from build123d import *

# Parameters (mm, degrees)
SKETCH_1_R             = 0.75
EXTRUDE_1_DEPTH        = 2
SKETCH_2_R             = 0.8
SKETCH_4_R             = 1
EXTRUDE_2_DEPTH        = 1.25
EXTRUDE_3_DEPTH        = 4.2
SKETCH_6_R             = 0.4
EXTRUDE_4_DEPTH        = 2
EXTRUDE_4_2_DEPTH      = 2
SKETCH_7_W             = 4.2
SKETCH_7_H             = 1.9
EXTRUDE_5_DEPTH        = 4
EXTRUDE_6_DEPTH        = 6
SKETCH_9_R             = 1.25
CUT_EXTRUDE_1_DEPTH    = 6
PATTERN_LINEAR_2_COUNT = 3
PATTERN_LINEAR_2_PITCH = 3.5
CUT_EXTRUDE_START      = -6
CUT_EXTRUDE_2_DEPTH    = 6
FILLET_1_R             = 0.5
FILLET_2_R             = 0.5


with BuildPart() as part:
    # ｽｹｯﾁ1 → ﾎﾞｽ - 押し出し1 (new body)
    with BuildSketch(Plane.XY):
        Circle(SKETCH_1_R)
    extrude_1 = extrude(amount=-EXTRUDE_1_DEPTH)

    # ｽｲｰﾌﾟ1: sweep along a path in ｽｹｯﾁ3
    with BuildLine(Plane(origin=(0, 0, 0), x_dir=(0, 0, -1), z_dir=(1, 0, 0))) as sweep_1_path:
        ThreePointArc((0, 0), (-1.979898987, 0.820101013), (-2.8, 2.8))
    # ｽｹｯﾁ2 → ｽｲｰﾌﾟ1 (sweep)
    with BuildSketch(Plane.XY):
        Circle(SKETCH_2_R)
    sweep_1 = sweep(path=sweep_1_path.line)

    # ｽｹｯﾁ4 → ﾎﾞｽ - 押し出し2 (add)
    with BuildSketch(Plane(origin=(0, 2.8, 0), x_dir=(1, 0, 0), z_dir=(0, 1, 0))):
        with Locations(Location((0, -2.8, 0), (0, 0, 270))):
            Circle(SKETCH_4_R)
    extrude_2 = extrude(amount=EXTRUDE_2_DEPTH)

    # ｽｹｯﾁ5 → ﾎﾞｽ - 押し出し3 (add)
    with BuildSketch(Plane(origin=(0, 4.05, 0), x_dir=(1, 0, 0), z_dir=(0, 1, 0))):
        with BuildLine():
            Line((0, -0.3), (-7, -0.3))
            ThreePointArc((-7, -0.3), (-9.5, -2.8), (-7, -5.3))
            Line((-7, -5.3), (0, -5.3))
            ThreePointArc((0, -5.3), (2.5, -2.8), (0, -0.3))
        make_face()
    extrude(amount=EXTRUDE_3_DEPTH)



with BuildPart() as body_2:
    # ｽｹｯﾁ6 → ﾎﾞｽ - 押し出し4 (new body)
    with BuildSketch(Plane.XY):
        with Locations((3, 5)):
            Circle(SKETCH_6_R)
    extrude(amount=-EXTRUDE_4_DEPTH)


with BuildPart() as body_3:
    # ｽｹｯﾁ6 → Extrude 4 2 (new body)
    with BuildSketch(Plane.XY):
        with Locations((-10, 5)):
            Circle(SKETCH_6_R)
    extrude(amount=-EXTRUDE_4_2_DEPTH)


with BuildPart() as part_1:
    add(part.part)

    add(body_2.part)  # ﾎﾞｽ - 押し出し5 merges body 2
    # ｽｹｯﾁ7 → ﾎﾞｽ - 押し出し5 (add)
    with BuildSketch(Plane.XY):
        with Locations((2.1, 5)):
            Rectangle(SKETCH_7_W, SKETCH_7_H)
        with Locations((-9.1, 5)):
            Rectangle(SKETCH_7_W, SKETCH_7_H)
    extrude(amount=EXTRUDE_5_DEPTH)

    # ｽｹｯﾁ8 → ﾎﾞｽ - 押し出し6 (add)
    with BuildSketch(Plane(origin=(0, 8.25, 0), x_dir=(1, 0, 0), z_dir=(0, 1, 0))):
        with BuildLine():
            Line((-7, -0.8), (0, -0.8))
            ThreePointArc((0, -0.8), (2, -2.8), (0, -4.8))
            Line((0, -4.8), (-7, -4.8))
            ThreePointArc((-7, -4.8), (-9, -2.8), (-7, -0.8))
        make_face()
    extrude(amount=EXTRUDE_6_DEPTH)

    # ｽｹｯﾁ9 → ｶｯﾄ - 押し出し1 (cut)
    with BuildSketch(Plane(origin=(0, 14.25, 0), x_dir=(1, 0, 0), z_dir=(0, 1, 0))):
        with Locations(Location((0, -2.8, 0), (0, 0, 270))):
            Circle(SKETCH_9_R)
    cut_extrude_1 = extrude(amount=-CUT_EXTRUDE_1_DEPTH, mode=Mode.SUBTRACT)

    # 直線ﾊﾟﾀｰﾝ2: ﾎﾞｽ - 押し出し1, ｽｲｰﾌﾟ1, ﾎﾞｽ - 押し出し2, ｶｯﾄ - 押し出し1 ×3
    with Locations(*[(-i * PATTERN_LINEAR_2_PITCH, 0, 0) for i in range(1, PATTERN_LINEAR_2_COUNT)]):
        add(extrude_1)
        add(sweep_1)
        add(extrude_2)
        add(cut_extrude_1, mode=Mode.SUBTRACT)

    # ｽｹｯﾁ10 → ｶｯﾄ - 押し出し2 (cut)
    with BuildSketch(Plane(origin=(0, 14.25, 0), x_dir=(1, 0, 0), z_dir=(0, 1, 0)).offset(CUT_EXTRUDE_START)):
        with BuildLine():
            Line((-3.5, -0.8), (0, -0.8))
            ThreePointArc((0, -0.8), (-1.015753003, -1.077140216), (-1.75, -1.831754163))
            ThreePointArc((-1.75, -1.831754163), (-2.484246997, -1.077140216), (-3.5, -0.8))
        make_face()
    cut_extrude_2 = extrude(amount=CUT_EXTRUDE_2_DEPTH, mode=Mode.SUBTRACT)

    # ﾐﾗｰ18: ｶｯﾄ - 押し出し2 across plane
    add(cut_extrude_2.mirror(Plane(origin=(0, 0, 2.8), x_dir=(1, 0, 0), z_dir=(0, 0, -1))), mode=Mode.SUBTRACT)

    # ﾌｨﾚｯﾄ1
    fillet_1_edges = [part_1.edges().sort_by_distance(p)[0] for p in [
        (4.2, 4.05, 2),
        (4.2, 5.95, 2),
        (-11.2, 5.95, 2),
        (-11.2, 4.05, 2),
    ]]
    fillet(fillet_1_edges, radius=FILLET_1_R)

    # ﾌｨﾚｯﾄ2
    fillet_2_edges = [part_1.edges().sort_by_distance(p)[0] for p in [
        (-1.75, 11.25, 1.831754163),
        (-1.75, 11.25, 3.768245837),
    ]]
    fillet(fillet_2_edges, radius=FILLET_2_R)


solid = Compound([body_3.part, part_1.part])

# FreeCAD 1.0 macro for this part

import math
import FreeCAD as App
import Part
import Sketcher


def edges_at(feature, points):
    """Names of the edges that pass closest to the given points."""
    edges = feature.Shape.Edges
    near = lambda p: min(range(len(edges)), key=lambda i: edges[i].distToShape(Part.Vertex(*p))[0])
    return sorted({f"Edge{near(p) + 1}" for p in points})


def add_polygon(sketch, points):
    """Adds a closed chain of lines whose ends are joined by coincident constraints."""
    first, n = sketch.GeometryCount, len(points)
    for a, b in zip(points, points[1:] + points[:1]):
        sketch.addGeometry(Part.LineSegment(App.Vector(*a, 0), App.Vector(*b, 0)), False)
    for i in range(n):
        sketch.addConstraint(Sketcher.Constraint("Coincident", first + i, 2, first + (i + 1) % n, 1))

doc = App.newDocument("Part")
body = doc.addObject("PartDesign::Body", "Body")

sketch1 = body.newObject("Sketcher::SketchObject", "Sketch")
sketch1.AttachmentSupport = (doc.getObject("XY_Plane"), [""])
sketch1.MapMode = "FlatFace"
sketch1.addGeometry(Part.Circle(App.Vector(0, 0, 0), App.Vector(0, 0, 1), 0.75), False)
sketch1.addConstraint([
    Sketcher.Constraint("Coincident", 0, 3, -1, 1),
    Sketcher.Constraint("Diameter", 0, 1.5),
])
pad1 = body.newObject("PartDesign::Pad", "Pad")
pad1.Profile = sketch1
pad1.Length = 2
pad1.Reversed = True

sketch2 = body.newObject("Sketcher::SketchObject", "Sketch001")
sketch2.AttachmentSupport = (doc.getObject("XY_Plane"), [""])
sketch2.MapMode = "FlatFace"
sketch2.addGeometry(Part.Circle(App.Vector(0, 0, 0), App.Vector(0, 0, 1), 0.8), False)
sketch2.addConstraint([
    Sketcher.Constraint("Coincident", 0, 3, -1, 1),
    Sketcher.Constraint("Diameter", 0, 1.6),
])

sketch3 = body.newObject("Sketcher::SketchObject", "Sketch002")
sketch3.AttachmentSupport = (doc.getObject("YZ_Plane"), [""])
sketch3.MapMode = "FlatFace"
sketch3.addGeometry(Part.ArcOfCircle(Part.Circle(App.Vector(2.8, 0, 0), App.Vector(0, 0, 1), 2.8), math.radians(90), math.radians(180)), False)
sketch3.addConstraint([
    Sketcher.Constraint("Coincident", 0, 2, -1, 1),
    Sketcher.Constraint("PointOnObject", 0, 3, -1),
    Sketcher.Constraint("Radius", 0, 2.8),
    Sketcher.Constraint("DistanceX", -1, 1, 0, 1, 2.8),
])
doc.recompute()

additivepipe = body.newObject("PartDesign::AdditivePipe", "AdditivePipe")
additivepipe.Profile = sketch2
additivepipe.Spine = (sketch3, ["Edge1"])

sketch4 = body.newObject("Sketcher::SketchObject", "Sketch003")
sketch4.AttachmentSupport = (doc.getObject("XZ_Plane"), [""])
sketch4.MapMode = "FlatFace"
sketch4.AttachmentOffset = App.Placement(App.Vector(0, 0, -2.8), App.Rotation())
sketch4.addGeometry(Part.Circle(App.Vector(0, 2.8, 0), App.Vector(0, 0, 1), 1), False)
sketch4.addConstraint([
    Sketcher.Constraint("PointOnObject", 0, 3, -2),
    Sketcher.Constraint("Diameter", 0, 2.0),
    Sketcher.Constraint("DistanceY", -1, 1, 0, 3, 2.8),
])
pad2 = body.newObject("PartDesign::Pad", "Pad001")
pad2.Profile = sketch4
pad2.Length = 1.25
pad2.Reversed = True

sketch5 = body.newObject("Sketcher::SketchObject", "Sketch004")
sketch5.AttachmentSupport = (doc.getObject("XZ_Plane"), [""])
sketch5.MapMode = "FlatFace"
sketch5.AttachmentOffset = App.Placement(App.Vector(0, 0, -4.05), App.Rotation())
sketch5.addGeometry([
    Part.LineSegment(App.Vector(0, 0.3, 0), App.Vector(-7, 0.3, 0)),
    Part.ArcOfCircle(Part.Circle(App.Vector(-7, 2.8, 0), App.Vector(0, 0, 1), 2.5), math.radians(90), math.radians(270)),
    Part.LineSegment(App.Vector(-7, 5.3, 0), App.Vector(0, 5.3, 0)),
    Part.ArcOfCircle(Part.Circle(App.Vector(0, 2.8, 0), App.Vector(0, 0, 1), 2.5), math.radians(-90), math.radians(90)),
], False)
sketch5.addConstraint([
    Sketcher.Constraint("Tangent", 0, 2, 1, 2),
    Sketcher.Constraint("Tangent", 1, 1, 2, 1),
    Sketcher.Constraint("Tangent", 2, 2, 3, 2),
    Sketcher.Constraint("Tangent", 3, 1, 0, 1),
    Sketcher.Constraint("Horizontal", 0),
    Sketcher.Constraint("Horizontal", 2),
    Sketcher.Constraint("PointOnObject", 3, 3, -2),
    Sketcher.Constraint("Radius", 1, 2.5),
    Sketcher.Constraint("DistanceX", 0, 2, 0, 1, 7.0),
    Sketcher.Constraint("DistanceY", -1, 1, 1, 3, 2.8),
])
pad3 = body.newObject("PartDesign::Pad", "Pad002")
pad3.Profile = sketch5
pad3.Length = 4.2
pad3.Reversed = True
body2 = doc.addObject("PartDesign::Body", "Body001")

sketch6 = body2.newObject("Sketcher::SketchObject", "Sketch005")
sketch6.AttachmentSupport = (doc.getObject("XY_Plane001"), [""])
sketch6.MapMode = "FlatFace"
sketch6.addGeometry(Part.Circle(App.Vector(3, 5, 0), App.Vector(0, 0, 1), 0.4), False)
sketch6.addConstraint([
    Sketcher.Constraint("Diameter", 0, 0.8),
    Sketcher.Constraint("DistanceX", -1, 1, 0, 3, 3.0),
    Sketcher.Constraint("DistanceY", -1, 1, 0, 3, 5.0),
])
pad4 = body2.newObject("PartDesign::Pad", "Pad003")
pad4.Profile = sketch6
pad4.Length = 2
pad4.Reversed = True
body3 = doc.addObject("PartDesign::Body", "Body002")

sketch7 = body3.newObject("Sketcher::SketchObject", "Sketch006")
sketch7.AttachmentSupport = (doc.getObject("XY_Plane002"), [""])
sketch7.MapMode = "FlatFace"
sketch7.addGeometry(Part.Circle(App.Vector(-10, 5, 0), App.Vector(0, 0, 1), 0.4), False)
sketch7.addConstraint([
    Sketcher.Constraint("Diameter", 0, 0.8),
    Sketcher.Constraint("DistanceX", 0, 3, -1, 1, 10.0),
    Sketcher.Constraint("DistanceY", -1, 1, 0, 3, 5.0),
])
pad5 = body3.newObject("PartDesign::Pad", "Pad004")
pad5.Profile = sketch7
pad5.Length = 2
pad5.Reversed = True
body.AllowCompound = True
doc.recompute()

boolean = body.newObject("PartDesign::Boolean", "Boolean")
boolean.Type = "Fuse"
boolean.addObjects([body2])

sketch8 = body.newObject("Sketcher::SketchObject", "Sketch007")
sketch8.AttachmentSupport = (doc.getObject("XY_Plane"), [""])
sketch8.MapMode = "FlatFace"
add_polygon(sketch8, [(0, 5.95), (0, 4.05), (4.2, 4.05), (4.2, 5.95)])
add_polygon(sketch8, [(-11.2, 5.95), (-11.2, 4.05), (-7, 4.05), (-7, 5.95)])
sketch8.addConstraint([
    Sketcher.Constraint("Vertical", 0),
    Sketcher.Constraint("Horizontal", 1),
    Sketcher.Constraint("Vertical", 2),
    Sketcher.Constraint("Horizontal", 3),
    Sketcher.Constraint("Vertical", 4),
    Sketcher.Constraint("Horizontal", 5),
    Sketcher.Constraint("Vertical", 6),
    Sketcher.Constraint("Horizontal", 7),
    Sketcher.Constraint("PointOnObject", 0, 2, -2),
    Sketcher.Constraint("Horizontal", 1, 2, 4, 2),
    Sketcher.Constraint("Horizontal", 3, 2, 6, 2),
    Sketcher.Constraint("Equal", 3, 5),
    Sketcher.Constraint("DistanceX", 1, 1, 1, 2, 4.2),
    Sketcher.Constraint("DistanceY", 0, 2, 0, 1, 1.9),
    Sketcher.Constraint("DistanceX", 5, 2, -1, 1, 7.0),
    Sketcher.Constraint("DistanceY", -1, 1, 0, 2, 4.05),
])
pad6 = body.newObject("PartDesign::Pad", "Pad005")
pad6.Profile = sketch8
pad6.Length = 4

sketch9 = body.newObject("Sketcher::SketchObject", "Sketch008")
sketch9.AttachmentSupport = (doc.getObject("XZ_Plane"), [""])
sketch9.MapMode = "FlatFace"
sketch9.AttachmentOffset = App.Placement(App.Vector(0, 0, -8.25), App.Rotation())
sketch9.addGeometry([
    Part.LineSegment(App.Vector(0, 0.8, 0), App.Vector(-7, 0.8, 0)),
    Part.ArcOfCircle(Part.Circle(App.Vector(-7, 2.8, 0), App.Vector(0, 0, 1), 2), math.radians(90), math.radians(270)),
    Part.LineSegment(App.Vector(-7, 4.8, 0), App.Vector(0, 4.8, 0)),
    Part.ArcOfCircle(Part.Circle(App.Vector(0, 2.8, 0), App.Vector(0, 0, 1), 2), math.radians(-90), math.radians(90)),
], False)
sketch9.addConstraint([
    Sketcher.Constraint("Tangent", 0, 2, 1, 2),
    Sketcher.Constraint("Tangent", 1, 1, 2, 1),
    Sketcher.Constraint("Tangent", 2, 2, 3, 2),
    Sketcher.Constraint("Tangent", 3, 1, 0, 1),
    Sketcher.Constraint("Horizontal", 0),
    Sketcher.Constraint("Horizontal", 2),
    Sketcher.Constraint("PointOnObject", 3, 3, -2),
    Sketcher.Constraint("Radius", 1, 2.0),
    Sketcher.Constraint("DistanceX", 0, 2, 0, 1, 7.0),
    Sketcher.Constraint("DistanceY", -1, 1, 1, 3, 2.8),
])
pad7 = body.newObject("PartDesign::Pad", "Pad006")
pad7.Profile = sketch9
pad7.Length = 6
pad7.Reversed = True

sketch10 = body.newObject("Sketcher::SketchObject", "Sketch009")
sketch10.AttachmentSupport = (doc.getObject("XZ_Plane"), [""])
sketch10.MapMode = "FlatFace"
sketch10.AttachmentOffset = App.Placement(App.Vector(0, 0, -14.25), App.Rotation())
sketch10.addGeometry(Part.Circle(App.Vector(0, 2.8, 0), App.Vector(0, 0, 1), 1.25), False)
sketch10.addConstraint([
    Sketcher.Constraint("PointOnObject", 0, 3, -2),
    Sketcher.Constraint("Diameter", 0, 2.5),
    Sketcher.Constraint("DistanceY", -1, 1, 0, 3, 2.8),
])
pocket1 = body.newObject("PartDesign::Pocket", "Pocket")
pocket1.Profile = sketch10
pocket1.Length = 6
pocket1.Reversed = True
doc.recompute()

linearpattern = body.newObject("PartDesign::LinearPattern", "LinearPattern")
linearpattern.Originals = [pad1, additivepipe, pad2, pocket1]
linearpattern.Direction = (doc.getObject("X_Axis"), [""])
linearpattern.Mode = "offset"
linearpattern.Offset = 3.5
linearpattern.Occurrences = 3
linearpattern.Reversed = True
body.Tip = linearpattern

sketch11 = body.newObject("Sketcher::SketchObject", "Sketch010")
sketch11.AttachmentSupport = (doc.getObject("XZ_Plane"), [""])
sketch11.MapMode = "FlatFace"
sketch11.AttachmentOffset = App.Placement(App.Vector(0, 0, -8.25), App.Rotation())
sketch11.addGeometry([
    Part.LineSegment(App.Vector(0, 0.8, 0), App.Vector(-3.5, 0.8, 0)),
    Part.ArcOfCircle(Part.Circle(App.Vector(-3.5, 2.8, 0), App.Vector(0, 0, 1), 2), math.radians(-90), math.radians(-28.955024)),
    Part.ArcOfCircle(Part.Circle(App.Vector(0, 2.8, 0), App.Vector(0, 0, 1), 2), math.radians(-151.044976), math.radians(-90)),
], False)
sketch11.addConstraint([
    Sketcher.Constraint("Tangent", 0, 2, 1, 1),
    Sketcher.Constraint("Coincident", 1, 2, 2, 1),
    Sketcher.Constraint("Tangent", 2, 2, 0, 1),
    Sketcher.Constraint("Horizontal", 0),
    Sketcher.Constraint("Equal", 1, 2),
    Sketcher.Constraint("PointOnObject", 2, 3, -2),
    Sketcher.Constraint("Radius", 1, 2.0),
    Sketcher.Constraint("DistanceX", 0, 2, 0, 1, 3.5),
    Sketcher.Constraint("DistanceY", -1, 1, 1, 3, 2.8),
])
pocket2 = body.newObject("PartDesign::Pocket", "Pocket001")
pocket2.Profile = sketch11
pocket2.Length = 6
doc.recompute()

datumplane = body.newObject("PartDesign::Plane", "DatumPlane")
datumplane.AttachmentSupport = (doc.getObject("XY_Plane"), [""])
datumplane.MapMode = "FlatFace"
datumplane.AttachmentOffset = App.Placement(App.Vector(0, 0, 2.8), App.Rotation())
mirrored = body.newObject("PartDesign::Mirrored", "Mirrored")
mirrored.Originals = [pocket2]
mirrored.MirrorPlane = (datumplane, [""])
body.Tip = mirrored
doc.recompute()

fillet = body.newObject("PartDesign::Fillet", "Fillet")
fillet.Base = (mirrored, edges_at(mirrored, [
    (4.2, 4.05, 2),
    (4.2, 5.95, 2),
    (-11.2, 5.95, 2),
    (-11.2, 4.05, 2),
]))
fillet.Radius = 0.5
doc.recompute()

fillet2 = body.newObject("PartDesign::Fillet", "Fillet001")
fillet2.Base = (fillet, edges_at(fillet, [(-1.75, 11.25, 1.832), (-1.75, 11.25, 3.768)]))
fillet2.Radius = 0.5

doc.recompute()
